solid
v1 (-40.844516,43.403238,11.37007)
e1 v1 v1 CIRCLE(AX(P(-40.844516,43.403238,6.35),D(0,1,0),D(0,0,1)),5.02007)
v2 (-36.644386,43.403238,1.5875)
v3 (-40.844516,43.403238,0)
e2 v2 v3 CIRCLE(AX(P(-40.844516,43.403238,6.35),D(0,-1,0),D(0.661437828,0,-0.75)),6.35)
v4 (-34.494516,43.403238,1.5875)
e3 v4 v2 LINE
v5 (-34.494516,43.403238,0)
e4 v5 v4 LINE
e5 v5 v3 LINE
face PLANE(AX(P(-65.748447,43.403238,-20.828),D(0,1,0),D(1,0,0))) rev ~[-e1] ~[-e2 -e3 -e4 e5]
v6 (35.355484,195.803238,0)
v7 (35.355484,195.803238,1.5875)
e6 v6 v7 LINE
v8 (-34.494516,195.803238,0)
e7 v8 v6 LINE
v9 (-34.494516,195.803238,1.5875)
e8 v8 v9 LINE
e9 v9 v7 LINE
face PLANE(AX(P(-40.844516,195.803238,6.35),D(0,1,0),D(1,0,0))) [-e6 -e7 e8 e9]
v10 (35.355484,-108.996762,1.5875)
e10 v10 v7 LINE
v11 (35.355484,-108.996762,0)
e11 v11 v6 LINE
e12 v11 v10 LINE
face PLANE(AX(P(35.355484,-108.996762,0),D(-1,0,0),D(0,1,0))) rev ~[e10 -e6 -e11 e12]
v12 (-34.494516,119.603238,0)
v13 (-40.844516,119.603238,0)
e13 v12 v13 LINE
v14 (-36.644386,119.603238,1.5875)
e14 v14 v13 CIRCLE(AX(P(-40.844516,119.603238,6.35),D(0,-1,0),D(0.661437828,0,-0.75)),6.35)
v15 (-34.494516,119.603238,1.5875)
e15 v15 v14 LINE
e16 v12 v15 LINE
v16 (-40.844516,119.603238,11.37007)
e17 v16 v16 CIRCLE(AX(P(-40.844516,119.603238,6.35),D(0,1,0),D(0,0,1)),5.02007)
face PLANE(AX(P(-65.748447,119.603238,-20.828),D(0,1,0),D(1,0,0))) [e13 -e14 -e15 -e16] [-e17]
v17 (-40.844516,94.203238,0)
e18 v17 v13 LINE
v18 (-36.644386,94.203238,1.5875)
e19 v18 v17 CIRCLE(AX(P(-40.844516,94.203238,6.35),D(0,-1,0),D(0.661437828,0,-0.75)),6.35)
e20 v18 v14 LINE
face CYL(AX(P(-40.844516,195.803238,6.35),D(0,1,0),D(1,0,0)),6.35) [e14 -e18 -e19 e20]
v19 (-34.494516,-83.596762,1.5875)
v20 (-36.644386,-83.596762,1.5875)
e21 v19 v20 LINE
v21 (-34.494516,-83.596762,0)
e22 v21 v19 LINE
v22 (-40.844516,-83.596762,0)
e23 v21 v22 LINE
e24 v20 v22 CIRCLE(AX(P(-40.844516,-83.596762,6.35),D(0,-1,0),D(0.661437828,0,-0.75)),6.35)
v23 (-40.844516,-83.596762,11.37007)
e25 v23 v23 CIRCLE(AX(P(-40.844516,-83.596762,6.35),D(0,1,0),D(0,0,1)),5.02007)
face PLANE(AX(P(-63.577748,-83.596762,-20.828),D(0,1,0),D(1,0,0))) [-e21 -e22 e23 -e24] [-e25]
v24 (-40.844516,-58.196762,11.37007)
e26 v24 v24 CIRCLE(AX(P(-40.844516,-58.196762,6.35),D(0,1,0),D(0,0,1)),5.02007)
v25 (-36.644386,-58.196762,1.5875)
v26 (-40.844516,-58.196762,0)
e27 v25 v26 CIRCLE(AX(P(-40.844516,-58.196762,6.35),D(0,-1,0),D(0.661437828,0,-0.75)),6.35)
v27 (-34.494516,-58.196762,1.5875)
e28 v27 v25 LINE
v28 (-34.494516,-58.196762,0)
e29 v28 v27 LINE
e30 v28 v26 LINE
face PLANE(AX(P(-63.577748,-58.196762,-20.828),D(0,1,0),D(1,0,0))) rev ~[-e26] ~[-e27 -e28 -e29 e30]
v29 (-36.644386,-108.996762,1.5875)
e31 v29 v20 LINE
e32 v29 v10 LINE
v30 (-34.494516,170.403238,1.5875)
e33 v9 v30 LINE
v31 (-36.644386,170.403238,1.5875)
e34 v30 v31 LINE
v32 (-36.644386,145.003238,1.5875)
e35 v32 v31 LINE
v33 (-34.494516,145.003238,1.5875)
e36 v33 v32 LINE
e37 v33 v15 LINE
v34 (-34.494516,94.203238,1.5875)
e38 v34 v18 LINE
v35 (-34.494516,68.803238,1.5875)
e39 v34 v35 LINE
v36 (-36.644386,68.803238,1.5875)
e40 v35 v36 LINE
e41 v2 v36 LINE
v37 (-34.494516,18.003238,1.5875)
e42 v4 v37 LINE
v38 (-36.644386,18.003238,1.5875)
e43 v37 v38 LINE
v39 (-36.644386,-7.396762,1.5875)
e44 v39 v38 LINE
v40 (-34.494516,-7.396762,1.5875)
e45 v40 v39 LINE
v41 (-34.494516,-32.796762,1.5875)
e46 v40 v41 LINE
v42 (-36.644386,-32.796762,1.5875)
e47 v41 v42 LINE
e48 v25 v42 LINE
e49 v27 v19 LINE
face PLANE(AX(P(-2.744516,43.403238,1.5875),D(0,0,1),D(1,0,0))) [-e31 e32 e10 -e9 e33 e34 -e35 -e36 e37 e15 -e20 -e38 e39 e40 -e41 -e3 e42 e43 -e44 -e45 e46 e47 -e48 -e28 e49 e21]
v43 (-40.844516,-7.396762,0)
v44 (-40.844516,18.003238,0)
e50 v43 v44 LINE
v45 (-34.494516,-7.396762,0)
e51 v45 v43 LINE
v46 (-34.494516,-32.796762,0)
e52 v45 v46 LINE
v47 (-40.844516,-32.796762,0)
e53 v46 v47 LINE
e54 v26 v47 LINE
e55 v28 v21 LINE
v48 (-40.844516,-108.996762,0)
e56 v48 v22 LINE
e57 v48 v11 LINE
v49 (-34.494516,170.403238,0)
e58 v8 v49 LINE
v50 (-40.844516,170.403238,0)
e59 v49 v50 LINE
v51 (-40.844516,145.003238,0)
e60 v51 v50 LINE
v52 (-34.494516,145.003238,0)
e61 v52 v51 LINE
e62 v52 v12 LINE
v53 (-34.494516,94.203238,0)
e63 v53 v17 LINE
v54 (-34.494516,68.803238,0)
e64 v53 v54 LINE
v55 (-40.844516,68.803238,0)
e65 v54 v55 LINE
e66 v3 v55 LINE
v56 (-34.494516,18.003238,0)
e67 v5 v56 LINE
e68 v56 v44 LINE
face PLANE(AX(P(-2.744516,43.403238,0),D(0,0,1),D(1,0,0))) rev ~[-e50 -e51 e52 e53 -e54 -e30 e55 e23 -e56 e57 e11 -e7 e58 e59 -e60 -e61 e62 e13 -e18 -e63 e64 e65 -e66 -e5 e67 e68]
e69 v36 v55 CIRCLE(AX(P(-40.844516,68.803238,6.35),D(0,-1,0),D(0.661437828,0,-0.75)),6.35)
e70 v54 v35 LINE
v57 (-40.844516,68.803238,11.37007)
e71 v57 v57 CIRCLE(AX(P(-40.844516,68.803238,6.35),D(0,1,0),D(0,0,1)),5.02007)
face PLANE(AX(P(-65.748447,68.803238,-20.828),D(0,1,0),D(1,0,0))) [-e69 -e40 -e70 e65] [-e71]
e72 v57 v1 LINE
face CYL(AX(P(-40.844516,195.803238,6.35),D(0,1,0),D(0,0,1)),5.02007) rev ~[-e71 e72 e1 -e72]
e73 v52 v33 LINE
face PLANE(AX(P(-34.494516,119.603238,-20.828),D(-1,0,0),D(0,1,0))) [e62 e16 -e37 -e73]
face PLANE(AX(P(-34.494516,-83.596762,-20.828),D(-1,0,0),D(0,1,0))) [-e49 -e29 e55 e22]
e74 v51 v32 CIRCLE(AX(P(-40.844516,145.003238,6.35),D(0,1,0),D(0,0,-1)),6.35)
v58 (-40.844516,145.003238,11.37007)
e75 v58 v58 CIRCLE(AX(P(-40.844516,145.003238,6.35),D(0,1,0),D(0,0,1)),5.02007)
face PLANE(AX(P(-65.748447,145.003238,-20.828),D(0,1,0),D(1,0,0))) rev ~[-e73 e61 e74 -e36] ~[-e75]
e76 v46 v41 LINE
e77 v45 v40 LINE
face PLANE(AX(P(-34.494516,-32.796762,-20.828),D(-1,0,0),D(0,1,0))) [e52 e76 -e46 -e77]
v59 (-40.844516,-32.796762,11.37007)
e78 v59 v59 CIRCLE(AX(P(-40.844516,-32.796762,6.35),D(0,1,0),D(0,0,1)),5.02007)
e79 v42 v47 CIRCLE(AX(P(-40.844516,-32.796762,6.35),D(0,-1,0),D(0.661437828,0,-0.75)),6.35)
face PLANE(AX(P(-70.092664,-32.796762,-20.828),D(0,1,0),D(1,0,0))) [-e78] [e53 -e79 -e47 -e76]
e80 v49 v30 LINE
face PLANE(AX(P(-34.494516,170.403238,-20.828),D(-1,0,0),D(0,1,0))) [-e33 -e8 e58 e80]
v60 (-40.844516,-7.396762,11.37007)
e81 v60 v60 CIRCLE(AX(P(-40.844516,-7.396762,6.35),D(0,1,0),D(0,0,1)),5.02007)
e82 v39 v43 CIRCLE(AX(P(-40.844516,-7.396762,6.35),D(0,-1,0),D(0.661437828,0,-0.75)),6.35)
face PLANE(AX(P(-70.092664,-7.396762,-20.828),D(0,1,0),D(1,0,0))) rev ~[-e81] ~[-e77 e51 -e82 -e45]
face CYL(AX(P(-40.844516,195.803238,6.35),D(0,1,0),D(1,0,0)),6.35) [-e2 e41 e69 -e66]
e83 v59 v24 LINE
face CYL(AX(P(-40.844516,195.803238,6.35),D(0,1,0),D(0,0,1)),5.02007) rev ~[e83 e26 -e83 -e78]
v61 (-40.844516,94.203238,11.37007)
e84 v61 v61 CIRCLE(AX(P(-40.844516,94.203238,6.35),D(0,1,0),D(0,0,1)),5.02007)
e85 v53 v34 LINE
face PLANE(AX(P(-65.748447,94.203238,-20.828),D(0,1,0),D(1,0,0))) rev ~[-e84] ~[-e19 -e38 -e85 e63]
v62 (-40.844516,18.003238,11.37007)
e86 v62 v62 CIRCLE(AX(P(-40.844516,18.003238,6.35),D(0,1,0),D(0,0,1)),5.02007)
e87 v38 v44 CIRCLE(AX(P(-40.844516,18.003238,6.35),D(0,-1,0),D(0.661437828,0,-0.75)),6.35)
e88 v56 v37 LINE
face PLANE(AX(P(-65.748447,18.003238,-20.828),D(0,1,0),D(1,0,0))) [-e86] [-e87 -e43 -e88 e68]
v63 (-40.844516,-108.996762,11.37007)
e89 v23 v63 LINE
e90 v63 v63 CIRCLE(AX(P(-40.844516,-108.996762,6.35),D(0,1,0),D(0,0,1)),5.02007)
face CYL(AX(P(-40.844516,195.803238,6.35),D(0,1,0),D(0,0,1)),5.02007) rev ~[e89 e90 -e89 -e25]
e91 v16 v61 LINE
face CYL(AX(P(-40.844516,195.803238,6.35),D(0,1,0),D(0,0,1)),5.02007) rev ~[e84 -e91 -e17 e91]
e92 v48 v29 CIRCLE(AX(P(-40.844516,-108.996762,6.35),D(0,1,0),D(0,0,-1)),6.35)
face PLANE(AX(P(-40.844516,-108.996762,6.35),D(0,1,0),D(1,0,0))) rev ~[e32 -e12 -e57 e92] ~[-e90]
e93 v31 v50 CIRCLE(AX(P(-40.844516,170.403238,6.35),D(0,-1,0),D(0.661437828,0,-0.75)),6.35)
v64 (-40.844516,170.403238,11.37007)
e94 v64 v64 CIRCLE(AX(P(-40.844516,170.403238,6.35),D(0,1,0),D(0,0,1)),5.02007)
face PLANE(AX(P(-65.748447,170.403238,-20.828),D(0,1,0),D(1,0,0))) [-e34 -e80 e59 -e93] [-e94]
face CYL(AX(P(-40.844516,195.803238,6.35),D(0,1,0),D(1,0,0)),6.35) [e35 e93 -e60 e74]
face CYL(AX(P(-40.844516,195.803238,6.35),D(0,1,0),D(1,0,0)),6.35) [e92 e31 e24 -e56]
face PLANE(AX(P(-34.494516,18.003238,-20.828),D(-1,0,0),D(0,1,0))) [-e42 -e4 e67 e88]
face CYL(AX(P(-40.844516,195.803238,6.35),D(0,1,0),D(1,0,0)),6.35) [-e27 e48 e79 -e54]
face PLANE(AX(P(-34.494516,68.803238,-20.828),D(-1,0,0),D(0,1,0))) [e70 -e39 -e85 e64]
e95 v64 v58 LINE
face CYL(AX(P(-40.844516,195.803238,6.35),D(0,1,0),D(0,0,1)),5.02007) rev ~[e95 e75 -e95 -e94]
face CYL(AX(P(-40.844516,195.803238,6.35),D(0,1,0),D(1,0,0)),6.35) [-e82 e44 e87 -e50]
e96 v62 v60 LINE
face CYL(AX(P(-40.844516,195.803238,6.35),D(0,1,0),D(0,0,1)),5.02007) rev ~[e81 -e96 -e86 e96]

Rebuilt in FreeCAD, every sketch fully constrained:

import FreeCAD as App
import Part
import Sketcher
Q = App.Units.Quantity


def add_polygon(sketch, points):
    """Adds a closed chain of lines whose ends are joined by coincident constraints."""
    first, n = sketch.GeometryCount, len(points)
    for a, b in zip(points, points[1:] + points[:1]):
        sketch.addGeometry(Part.LineSegment(App.Vector(*a, 0), App.Vector(*b, 0)), False)
    for i in range(n):
        sketch.addConstraint(Sketcher.Constraint("Coincident", first + i, 2, first + (i + 1) % n, 1))

doc = App.newDocument("Part")
params = doc.addObject("Spreadsheet::Sheet", "Params")
for row, (alias, value) in enumerate([
    ("sketch1_width", "3 in"),
    ("sketch1_height", "12 in"),
    ("pad1_length", "0.0625 in"),
    ("sketch2_diameter", "0.5 in"),
    ("pad2_length", "12 in"),
    ("sketch4_height", "1 in"),
], start=1):
    params.set(f"A{row}", alias)
    params.set(f"B{row}", "=" + value)
    params.setAlias(f"B{row}", alias)

body = doc.addObject("PartDesign::Body", "Body")

sketch1 = body.newObject("Sketcher::SketchObject", "Sketch")
sketch1.AttachmentSupport = (doc.getObject("XY_Plane"), [""])
sketch1.MapMode = "FlatFace"
add_polygon(sketch1, [(-41, 196), (-41, -109), (35, -109), (35, 196)])
sketch1.addConstraint([
    Sketcher.Constraint("Vertical", 0),
    Sketcher.Constraint("Horizontal", 1),
    Sketcher.Constraint("Vertical", 2),
    Sketcher.Constraint("Horizontal", 3),
    Sketcher.Constraint("DistanceX", 1, 1, 1, 2, Q("3 in")),
    Sketcher.Constraint("DistanceY", 0, 2, 0, 1, Q("12 in")),
    Sketcher.Constraint("DistanceY", 0, 2, -1, 1, 108.996762),
    Sketcher.Constraint("DistanceX", 0, 2, -1, 1, 40.844516),
])
sketch1.setExpression("Constraints[8]", "Params.sketch1_width")
sketch1.setExpression("Constraints[9]", "Params.sketch1_height")
pad1 = body.newObject("PartDesign::Pad", "Pad")
pad1.Profile = sketch1
pad1.setExpression("Length", "Params.pad1_length")

sketch2 = body.newObject("Sketcher::SketchObject", "Sketch001")
sketch2.AttachmentSupport = (doc.getObject("XZ_Plane"), [""])
sketch2.MapMode = "FlatFace"
sketch2.AttachmentOffset = App.Placement(App.Vector(0, 0, -195.803238), App.Rotation())
sketch2.addGeometry(Part.Circle(App.Vector(-41, 6, 0), App.Vector(0, 0, 1), 6), False)
sketch2.addConstraint([
    Sketcher.Constraint("Diameter", 0, Q("0.5 in")),
    Sketcher.Constraint("DistanceY", -1, 1, 0, 3, Q("0.25 in")),
    Sketcher.Constraint("DistanceX", 0, 3, -1, 1, 40.844516),
])
sketch2.setExpression("Constraints[0]", "Params.sketch2_diameter")
pad2 = body.newObject("PartDesign::Pad", "Pad001")
pad2.Profile = sketch2
pad2.setExpression("Length", "Params.pad2_length")

sketch3 = body.newObject("Sketcher::SketchObject", "Sketch002")
sketch3.AttachmentSupport = (doc.getObject("XZ_Plane"), [""])
sketch3.MapMode = "FlatFace"
sketch3.AttachmentOffset = App.Placement(App.Vector(0, 0, -195.803238), App.Rotation())
sketch3.addGeometry(Part.Circle(App.Vector(-41, 6, 0), App.Vector(0, 0, 1), 5), False)
sketch3.addConstraint([
    Sketcher.Constraint("DistanceY", -1, 1, 0, 3, Q("0.25 in")),
    Sketcher.Constraint("Diameter", 0, 10.040139),
    Sketcher.Constraint("DistanceX", 0, 3, -1, 1, 40.844516),
])
pocket1 = body.newObject("PartDesign::Pocket", "Pocket")
pocket1.Profile = sketch3
pocket1.Type = "UpToFirst"
pocket1.Reversed = True

sketch4 = body.newObject("Sketcher::SketchObject", "Sketch003")
sketch4.AttachmentSupport = (doc.getObject("XY_Plane"), [""])
sketch4.MapMode = "FlatFace"
sketch4.AttachmentOffset = App.Placement(App.Vector(0, 0, 0.0625 * 25.4), App.Rotation())
add_polygon(sketch4, [(-66, 196), (-66, 170), (-34, 170), (-34, 196)])
add_polygon(sketch4, [(-66, 145), (-66, 120), (-34, 120), (-34, 145)])
add_polygon(sketch4, [(-66, 94), (-66, 69), (-34, 69), (-34, 94)])
add_polygon(sketch4, [(-66, 43), (-66, 18), (-34, 18), (-34, 43)])
add_polygon(sketch4, [(-70, -7), (-70, -33), (-34, -33), (-34, -7)])
add_polygon(sketch4, [(-64, -58), (-64, -84), (-34, -84), (-34, -58)])
sketch4.addConstraint([
    Sketcher.Constraint("Vertical", 0),
    Sketcher.Constraint("Horizontal", 1),
    Sketcher.Constraint("Vertical", 2),
    Sketcher.Constraint("Horizontal", 3),
    Sketcher.Constraint("Vertical", 4),
    Sketcher.Constraint("Horizontal", 5),
    Sketcher.Constraint("Vertical", 6),
    Sketcher.Constraint("Horizontal", 7),
    Sketcher.Constraint("Vertical", 8),
    Sketcher.Constraint("Horizontal", 9),
    Sketcher.Constraint("Vertical", 10),
    Sketcher.Constraint("Horizontal", 11),
    Sketcher.Constraint("Vertical", 12),
    Sketcher.Constraint("Horizontal", 13),
    Sketcher.Constraint("Vertical", 14),
    Sketcher.Constraint("Horizontal", 15),
    Sketcher.Constraint("Vertical", 16),
    Sketcher.Constraint("Horizontal", 17),
    Sketcher.Constraint("Vertical", 18),
    Sketcher.Constraint("Horizontal", 19),
    Sketcher.Constraint("Vertical", 20),
    Sketcher.Constraint("Horizontal", 21),
    Sketcher.Constraint("Vertical", 22),
    Sketcher.Constraint("Horizontal", 23),
    Sketcher.Constraint("Vertical", 3, 2, 4, 2),
    Sketcher.Constraint("Vertical", 2, 2, 5, 2),
    Sketcher.Constraint("Vertical", 7, 2, 8, 2),
    Sketcher.Constraint("Vertical", 6, 2, 9, 2),
    Sketcher.Constraint("Vertical", 11, 2, 12, 2),
    Sketcher.Constraint("Vertical", 10, 2, 13, 2),
    Sketcher.Constraint("Vertical", 14, 2, 17, 2),
    Sketcher.Constraint("Vertical", 18, 2, 21, 2),
    Sketcher.Constraint("Equal", 2, 4),
    Sketcher.Constraint("Equal", 6, 8),
    Sketcher.Constraint("Equal", 10, 12),
    Sketcher.Constraint("Equal", 14, 16),
    Sketcher.Constraint("Equal", 18, 20),
    Sketcher.Constraint("DistanceY", 0, 2, 0, 1, Q("1 in")),
    Sketcher.Constraint("DistanceY", 4, 2, 0, 2, Q("2 in")),
    Sketcher.Constraint("DistanceY", 8, 2, 4, 2, Q("2 in")),
    Sketcher.Constraint("DistanceY", 12, 2, 8, 2, Q("2 in")),
    Sketcher.Constraint("DistanceY", 16, 2, 12, 2, Q("2 in")),
    Sketcher.Constraint("DistanceY", 20, 2, 16, 2, Q("2 in")),
    Sketcher.Constraint("DistanceX", 1, 1, 1, 2, 31.253931),
    Sketcher.Constraint("DistanceX", 21, 1, 21, 2, 29.083231),
    Sketcher.Constraint("DistanceX", 17, 1, 17, 2, 35.598148),
    Sketcher.Constraint("DistanceY", -1, 1, 0, 2, 170.403238),
    Sketcher.Constraint("DistanceX", 0, 2, -1, 1, 65.748447),
])
sketch4.setExpression("Constraints[61]", "Params.sketch4_height")
pocket2 = body.newObject("PartDesign::Pocket", "Pocket001")
pocket2.Profile = sketch4
pocket2.Type = "ThroughAll"
pocket2.Midplane = True

doc.recompute()
